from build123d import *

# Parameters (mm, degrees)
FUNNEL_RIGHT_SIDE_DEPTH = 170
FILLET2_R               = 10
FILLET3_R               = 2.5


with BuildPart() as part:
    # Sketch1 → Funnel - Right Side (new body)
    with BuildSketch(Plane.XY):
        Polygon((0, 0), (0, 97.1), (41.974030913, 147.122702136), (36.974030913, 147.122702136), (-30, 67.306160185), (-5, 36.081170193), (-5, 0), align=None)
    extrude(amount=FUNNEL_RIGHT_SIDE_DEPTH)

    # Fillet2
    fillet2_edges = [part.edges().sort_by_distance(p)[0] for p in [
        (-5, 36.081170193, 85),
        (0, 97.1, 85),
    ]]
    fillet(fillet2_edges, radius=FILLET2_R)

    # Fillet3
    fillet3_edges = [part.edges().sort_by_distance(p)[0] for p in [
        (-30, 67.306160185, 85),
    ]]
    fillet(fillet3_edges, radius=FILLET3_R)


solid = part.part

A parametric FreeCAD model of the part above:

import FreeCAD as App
import Part
import Sketcher
Q = App.Units.Quantity


def edges_at(feature, points):
    """Names of the edges that pass closest to the given points."""
    edges = feature.Shape.Edges
    near = lambda p: min(range(len(edges)), key=lambda i: edges[i].distToShape(Part.Vertex(*p))[0])
    return sorted({f"Edge{near(p) + 1}" for p in points})


def add_polygon(sketch, points):
    """Adds a closed chain of lines whose ends are joined by coincident constraints."""
    first, n = sketch.GeometryCount, len(points)
    for a, b in zip(points, points[1:] + points[:1]):
        sketch.addGeometry(Part.LineSegment(App.Vector(*a, 0), App.Vector(*b, 0)), False)
    for i in range(n):
        sketch.addConstraint(Sketcher.Constraint("Coincident", first + i, 2, first + (i + 1) % n, 1))

doc = App.newDocument("Part")
params = doc.addObject("Spreadsheet::Sheet", "Params")
for row, (alias, value) in enumerate([
    ("sketch1_width", "5 mm"),
    ("sketch1_length", "40 mm"),
    ("sketch1_height", "97.1 mm"),
    ("sketch1_length2", "65.3 mm"),
    ("pad1_length", "170 mm"),
    ("fillet_radius", "10 mm"),
    ("fillet2_radius", "2.5 mm"),
], start=1):
    params.set(f"A{row}", alias)
    params.set(f"B{row}", "=" + value)
    params.setAlias(f"B{row}", alias)

body = doc.addObject("PartDesign::Body", "Body")

sketch1 = body.newObject("Sketcher::SketchObject", "Sketch")
sketch1.AttachmentSupport = (doc.getObject("XY_Plane"), [""])
sketch1.MapMode = "FlatFace"
add_polygon(sketch1, [(0, 0), (0, 97.1), (41.974031, 147.122702), (36.974031, 147.122702), (-30, 67.30616), (-5, 36.08117), (-5, 0)])
sketch1.addConstraint(Sketcher.Constraint("Vertical", 0))
sketch1.addConstraint(Sketcher.Constraint("Horizontal", 2))
sketch1.addConstraint(Sketcher.Constraint("Vertical", 5))
sketch1.addConstraint(Sketcher.Constraint("Horizontal", 6))
sketch1.addConstraint(Sketcher.Constraint("Coincident", 6, 2, -1, 1))
sketch1.addConstraint(Sketcher.Constraint("Parallel", 1, 3))
sketch1.addConstraint(Sketcher.Constraint("Equal", 2, 6))
sketch1.addConstraint(Sketcher.Constraint("DistanceX", 2, 2, 2, 1, 5.0))
sketch1.addConstraint(Sketcher.Constraint("Angle", 1, Q("50 deg")))
sketch1.addConstraint(Sketcher.Constraint("Distance", 4, 40.0))
sketch1.addConstraint(Sketcher.Constraint("DistanceY", 0, 1, 0, 2, 97.1))
sketch1.addConstraint(Sketcher.Constraint("DistanceX", 3, 2, -1, 1, 30.0))
sketch1.addConstraint(Sketcher.Constraint("Distance", 1, 65.3))
sketch1.setExpression("Constraints[14]", "Params.sketch1_width")
sketch1.setExpression("Constraints[16]", "Params.sketch1_length")
sketch1.setExpression("Constraints[17]", "Params.sketch1_height")
sketch1.setExpression("Constraints[19]", "Params.sketch1_length2")
pad1 = body.newObject("PartDesign::Pad", "Pad")
pad1.Profile = sketch1
pad1.setExpression("Length", "Params.pad1_length")
doc.recompute()

fillet = body.newObject("PartDesign::Fillet", "Fillet")
fillet.Base = (pad1, edges_at(pad1, [(-5, 36.081, 85), (0, 97.1, 85)]))
fillet.setExpression("Radius", "Params.fillet_radius")
doc.recompute()

fillet2 = body.newObject("PartDesign::Fillet", "Fillet001")
fillet2.Base = (fillet, edges_at(fillet, [(-30, 67.306, 85)]))
fillet2.setExpression("Radius", "Params.fillet2_radius")

doc.recompute()
